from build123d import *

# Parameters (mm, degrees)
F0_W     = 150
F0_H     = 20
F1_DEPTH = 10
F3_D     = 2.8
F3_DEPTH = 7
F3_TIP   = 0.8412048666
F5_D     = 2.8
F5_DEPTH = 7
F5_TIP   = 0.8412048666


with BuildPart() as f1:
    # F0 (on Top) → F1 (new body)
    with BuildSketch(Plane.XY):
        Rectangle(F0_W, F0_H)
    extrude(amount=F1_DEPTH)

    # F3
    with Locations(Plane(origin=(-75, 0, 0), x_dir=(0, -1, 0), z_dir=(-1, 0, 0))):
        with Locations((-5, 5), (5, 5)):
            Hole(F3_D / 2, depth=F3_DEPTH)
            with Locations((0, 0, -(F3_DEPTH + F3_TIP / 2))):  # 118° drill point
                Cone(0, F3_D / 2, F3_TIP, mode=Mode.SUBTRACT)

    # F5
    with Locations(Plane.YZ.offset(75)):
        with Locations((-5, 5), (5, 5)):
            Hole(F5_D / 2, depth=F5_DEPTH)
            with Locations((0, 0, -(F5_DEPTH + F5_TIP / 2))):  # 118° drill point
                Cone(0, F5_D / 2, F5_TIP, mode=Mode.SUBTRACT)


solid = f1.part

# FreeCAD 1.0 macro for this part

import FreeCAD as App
import Part
import Sketcher
Q = App.Units.Quantity

doc = App.newDocument("Part")
body = doc.addObject("PartDesign::Body", "Body")

# Sketch on XY plane
sketch1 = body.newObject("Sketcher::SketchObject", "Sketch")
sketch1.AttachmentSupport = (doc.getObject("XY_Plane"), [""])
sketch1.MapMode = "FlatFace"
sketch1.addGeometry([
    Part.LineSegment(App.Vector(-75, 10, 0), App.Vector(-75, -10, 0)),
    Part.LineSegment(App.Vector(-75, -10, 0), App.Vector(75, -10, 0)),
    Part.LineSegment(App.Vector(75, -10, 0), App.Vector(75, 10, 0)),
    Part.LineSegment(App.Vector(75, 10, 0), App.Vector(-75, 10, 0)),
], False)
sketch1.addConstraint([
    Sketcher.Constraint("Coincident", 0, 2, 1, 1),
    Sketcher.Constraint("Coincident", 1, 2, 2, 1),
    Sketcher.Constraint("Coincident", 2, 2, 3, 1),
    Sketcher.Constraint("Coincident", 3, 2, 0, 1),
    Sketcher.Constraint("Vertical", 0),
    Sketcher.Constraint("Horizontal", 1),
    Sketcher.Constraint("Vertical", 2),
    Sketcher.Constraint("Horizontal", 3),
    Sketcher.Constraint("Symmetric", 0, 2, 2, 2, -1, 1),
    Sketcher.Constraint("DistanceX", 1, 1, 1, 2, Q("150 mm")),
    Sketcher.Constraint("DistanceY", 0, 2, 0, 1, Q("20 mm")),
])
pad1 = body.newObject("PartDesign::Pad", "Pad")
pad1.Profile = sketch1
pad1.Length = 10

# Sketch on YZ plane
sketch2 = body.newObject("Sketcher::SketchObject", "Sketch001")
sketch2.AttachmentSupport = (doc.getObject("YZ_Plane"), [""])
sketch2.MapMode = "FlatFace"
sketch2.AttachmentOffset = App.Placement(App.Vector(0, 0, -75), App.Rotation())
sketch2.addGeometry([
    Part.Circle(App.Vector(5, 5, 0), App.Vector(0, 0, 1), 1.4),
    Part.Circle(App.Vector(-5, 5, 0), App.Vector(0, 0, 1), 1.4),
], False)
sketch2.addConstraint([
    Sketcher.Constraint("Equal", 0, 1),
    Sketcher.Constraint("Symmetric", 0, 3, 1, 3, -2),
    Sketcher.Constraint("Diameter", 0, Q("2.8 mm")),
    Sketcher.Constraint("DistanceX", -1, 1, 0, 3, Q("5 mm")),
    Sketcher.Constraint("DistanceY", -1, 1, 0, 3, Q("5 mm")),
])
doc.recompute()
hole = body.newObject("PartDesign::Hole", "Hole")
hole.Profile = sketch2
hole.ThreadType = "None"
hole.Diameter = 2.8
hole.DepthType = "Dimension"
hole.Depth = 7
hole.DrillPoint = "Angled"
hole.DrillPointAngle = 118
hole.Reversed = True

# Sketch on YZ plane
sketch3 = body.newObject("Sketcher::SketchObject", "Sketch002")
sketch3.AttachmentSupport = (doc.getObject("YZ_Plane"), [""])
sketch3.MapMode = "FlatFace"
sketch3.AttachmentOffset = App.Placement(App.Vector(0, 0, 75), App.Rotation())
sketch3.addGeometry([
    Part.Circle(App.Vector(-5, 5, 0), App.Vector(0, 0, 1), 1.4),
    Part.Circle(App.Vector(5, 5, 0), App.Vector(0, 0, 1), 1.4),
], False)
sketch3.addConstraint([
    Sketcher.Constraint("Equal", 0, 1),
    Sketcher.Constraint("Symmetric", 0, 3, 1, 3, -2),
    Sketcher.Constraint("Diameter", 0, Q("2.8 mm")),
    Sketcher.Constraint("DistanceX", 0, 3, -1, 1, Q("5 mm")),
    Sketcher.Constraint("DistanceY", -1, 1, 0, 3, Q("5 mm")),
])
doc.recompute()
hole2 = body.newObject("PartDesign::Hole", "Hole001")
hole2.Profile = sketch3
hole2.ThreadType = "None"
hole2.Diameter = 2.8
hole2.DepthType = "Dimension"
hole2.Depth = 7
hole2.DrillPoint = "Angled"
hole2.DrillPointAngle = 118

doc.recompute()
